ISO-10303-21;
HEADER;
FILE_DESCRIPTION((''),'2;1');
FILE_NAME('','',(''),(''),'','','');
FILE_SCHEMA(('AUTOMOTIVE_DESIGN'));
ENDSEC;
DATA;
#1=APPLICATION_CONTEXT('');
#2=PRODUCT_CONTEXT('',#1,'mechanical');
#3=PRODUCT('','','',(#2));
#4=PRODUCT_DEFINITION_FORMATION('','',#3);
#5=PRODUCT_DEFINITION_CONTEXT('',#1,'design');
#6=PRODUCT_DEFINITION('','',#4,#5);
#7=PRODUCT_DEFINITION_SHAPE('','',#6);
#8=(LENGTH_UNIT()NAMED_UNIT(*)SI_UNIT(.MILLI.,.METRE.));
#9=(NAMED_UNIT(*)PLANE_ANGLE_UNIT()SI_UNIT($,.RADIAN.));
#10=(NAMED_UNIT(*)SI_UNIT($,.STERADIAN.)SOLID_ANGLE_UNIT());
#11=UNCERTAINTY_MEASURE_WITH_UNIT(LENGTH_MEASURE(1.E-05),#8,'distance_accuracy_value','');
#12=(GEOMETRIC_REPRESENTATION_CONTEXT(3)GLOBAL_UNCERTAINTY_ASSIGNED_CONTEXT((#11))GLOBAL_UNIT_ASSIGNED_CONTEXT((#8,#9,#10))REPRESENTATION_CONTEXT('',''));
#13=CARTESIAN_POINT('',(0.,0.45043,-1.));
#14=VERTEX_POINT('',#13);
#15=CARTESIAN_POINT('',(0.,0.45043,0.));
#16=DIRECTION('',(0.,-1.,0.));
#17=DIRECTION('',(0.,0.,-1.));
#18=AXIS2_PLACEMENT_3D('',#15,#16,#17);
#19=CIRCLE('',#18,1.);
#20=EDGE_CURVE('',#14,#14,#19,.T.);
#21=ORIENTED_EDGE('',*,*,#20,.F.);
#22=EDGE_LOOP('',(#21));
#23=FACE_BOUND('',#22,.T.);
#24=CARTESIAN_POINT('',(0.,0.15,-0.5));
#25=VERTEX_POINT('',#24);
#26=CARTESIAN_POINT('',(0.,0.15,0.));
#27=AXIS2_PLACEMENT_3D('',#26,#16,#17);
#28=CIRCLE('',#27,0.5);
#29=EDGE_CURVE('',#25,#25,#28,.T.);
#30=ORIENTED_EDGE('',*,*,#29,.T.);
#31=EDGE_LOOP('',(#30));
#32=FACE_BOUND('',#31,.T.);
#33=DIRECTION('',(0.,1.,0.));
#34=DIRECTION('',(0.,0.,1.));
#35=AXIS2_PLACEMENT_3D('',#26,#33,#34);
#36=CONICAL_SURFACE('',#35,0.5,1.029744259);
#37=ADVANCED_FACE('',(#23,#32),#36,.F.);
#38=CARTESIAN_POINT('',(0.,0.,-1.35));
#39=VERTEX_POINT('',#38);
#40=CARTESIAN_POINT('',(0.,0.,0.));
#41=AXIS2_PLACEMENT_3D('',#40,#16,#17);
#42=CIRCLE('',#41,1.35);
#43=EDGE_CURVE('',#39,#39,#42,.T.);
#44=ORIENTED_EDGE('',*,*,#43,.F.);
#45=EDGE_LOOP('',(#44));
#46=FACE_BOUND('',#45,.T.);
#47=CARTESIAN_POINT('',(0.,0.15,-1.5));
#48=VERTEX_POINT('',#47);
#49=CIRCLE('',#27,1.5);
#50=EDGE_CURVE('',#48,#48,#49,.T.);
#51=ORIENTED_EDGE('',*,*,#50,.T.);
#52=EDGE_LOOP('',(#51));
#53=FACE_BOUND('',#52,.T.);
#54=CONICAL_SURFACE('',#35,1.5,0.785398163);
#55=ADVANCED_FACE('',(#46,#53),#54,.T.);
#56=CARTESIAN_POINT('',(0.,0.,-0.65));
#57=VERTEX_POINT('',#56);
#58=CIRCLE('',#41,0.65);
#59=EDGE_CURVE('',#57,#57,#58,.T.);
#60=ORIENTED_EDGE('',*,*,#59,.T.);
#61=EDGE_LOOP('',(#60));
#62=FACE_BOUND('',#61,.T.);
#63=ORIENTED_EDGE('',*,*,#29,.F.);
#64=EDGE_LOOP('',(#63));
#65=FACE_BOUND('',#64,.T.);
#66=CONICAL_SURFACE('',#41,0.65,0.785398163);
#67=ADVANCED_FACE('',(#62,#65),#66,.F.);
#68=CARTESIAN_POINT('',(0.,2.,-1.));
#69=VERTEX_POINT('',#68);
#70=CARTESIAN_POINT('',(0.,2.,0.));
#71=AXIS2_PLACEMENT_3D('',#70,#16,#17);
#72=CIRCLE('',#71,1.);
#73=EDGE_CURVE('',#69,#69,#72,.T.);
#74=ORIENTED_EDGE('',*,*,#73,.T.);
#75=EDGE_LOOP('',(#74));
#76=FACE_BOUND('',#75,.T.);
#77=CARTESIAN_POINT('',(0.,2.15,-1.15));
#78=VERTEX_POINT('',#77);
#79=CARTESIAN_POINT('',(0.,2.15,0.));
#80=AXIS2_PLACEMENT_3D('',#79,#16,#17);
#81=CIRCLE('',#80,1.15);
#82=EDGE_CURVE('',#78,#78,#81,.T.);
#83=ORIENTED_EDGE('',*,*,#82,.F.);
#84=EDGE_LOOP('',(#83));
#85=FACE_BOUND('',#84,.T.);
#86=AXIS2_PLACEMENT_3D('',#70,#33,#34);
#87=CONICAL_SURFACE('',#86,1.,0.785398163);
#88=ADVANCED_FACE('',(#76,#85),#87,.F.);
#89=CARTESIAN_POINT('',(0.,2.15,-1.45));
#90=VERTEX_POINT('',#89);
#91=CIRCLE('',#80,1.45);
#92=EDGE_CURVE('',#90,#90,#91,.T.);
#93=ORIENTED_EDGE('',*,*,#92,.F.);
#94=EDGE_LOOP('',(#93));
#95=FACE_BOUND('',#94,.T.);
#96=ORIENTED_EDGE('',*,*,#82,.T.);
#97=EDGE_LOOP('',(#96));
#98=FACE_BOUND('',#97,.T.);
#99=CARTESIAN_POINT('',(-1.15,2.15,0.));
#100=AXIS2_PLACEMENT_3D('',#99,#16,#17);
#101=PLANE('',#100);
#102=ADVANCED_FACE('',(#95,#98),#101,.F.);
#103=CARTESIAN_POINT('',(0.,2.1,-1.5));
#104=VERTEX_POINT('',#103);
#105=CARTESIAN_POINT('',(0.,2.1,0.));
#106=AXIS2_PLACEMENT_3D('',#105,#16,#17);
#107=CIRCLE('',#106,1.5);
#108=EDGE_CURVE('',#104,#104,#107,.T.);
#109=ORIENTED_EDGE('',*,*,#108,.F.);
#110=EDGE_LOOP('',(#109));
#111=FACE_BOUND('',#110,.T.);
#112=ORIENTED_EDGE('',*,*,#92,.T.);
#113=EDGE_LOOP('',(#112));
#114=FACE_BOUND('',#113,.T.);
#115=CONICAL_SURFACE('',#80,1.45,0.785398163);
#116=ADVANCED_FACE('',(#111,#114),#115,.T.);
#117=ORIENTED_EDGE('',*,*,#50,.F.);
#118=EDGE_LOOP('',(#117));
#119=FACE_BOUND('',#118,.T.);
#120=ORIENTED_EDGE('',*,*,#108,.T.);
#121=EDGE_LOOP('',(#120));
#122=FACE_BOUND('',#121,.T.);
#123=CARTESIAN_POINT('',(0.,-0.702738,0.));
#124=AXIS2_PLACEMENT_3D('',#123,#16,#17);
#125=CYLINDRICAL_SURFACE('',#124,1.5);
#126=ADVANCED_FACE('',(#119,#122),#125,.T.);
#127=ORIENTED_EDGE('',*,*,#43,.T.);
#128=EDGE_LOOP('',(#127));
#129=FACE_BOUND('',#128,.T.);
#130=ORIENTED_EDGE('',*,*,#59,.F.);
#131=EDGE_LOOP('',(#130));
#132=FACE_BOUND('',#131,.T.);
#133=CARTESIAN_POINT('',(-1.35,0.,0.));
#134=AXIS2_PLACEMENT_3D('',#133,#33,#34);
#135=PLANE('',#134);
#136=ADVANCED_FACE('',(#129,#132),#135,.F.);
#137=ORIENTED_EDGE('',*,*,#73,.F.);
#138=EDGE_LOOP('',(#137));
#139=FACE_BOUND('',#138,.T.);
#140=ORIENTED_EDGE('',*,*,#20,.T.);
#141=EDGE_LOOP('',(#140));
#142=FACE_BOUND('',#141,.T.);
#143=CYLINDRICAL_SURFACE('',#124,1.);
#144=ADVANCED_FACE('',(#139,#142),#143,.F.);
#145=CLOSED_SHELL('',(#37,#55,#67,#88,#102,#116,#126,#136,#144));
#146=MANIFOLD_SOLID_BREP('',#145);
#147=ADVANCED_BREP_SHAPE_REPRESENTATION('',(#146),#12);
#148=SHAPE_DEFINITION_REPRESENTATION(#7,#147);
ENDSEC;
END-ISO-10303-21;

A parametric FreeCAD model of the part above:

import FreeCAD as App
import Part
import Sketcher
from FreeCAD import Vector
Q = App.Units.Quantity

doc = App.newDocument("Part")
body = doc.addObject("PartDesign::Body", "Body")

# Sketch on XY plane
sketch1 = body.newObject("Sketcher::SketchObject", "Sketch")
sketch1.AttachmentSupport = (doc.getObject("XY_Plane"), [""])
sketch1.MapMode = "FlatFace"
sketch1.addGeometry([
    Part.LineSegment(Vector(-1.35, 0, 0), Vector(-0.65, 0, 0)),  # 0
    Part.LineSegment(Vector(-0.65, 0, 0), Vector(-0.5, 0.15, 0)),  # 1
    Part.LineSegment(Vector(-0.5, 0.15, 0), Vector(-1, 0.45, 0)),  # 2
    Part.LineSegment(Vector(-1, 0.45, 0), Vector(-1, 2, 0)),  # 3
    Part.LineSegment(Vector(-1, 2, 0), Vector(-1.15, 2.15, 0)),  # 4
    Part.LineSegment(Vector(-1.15, 2.15, 0), Vector(-1.45, 2.15, 0)),  # 5
    Part.LineSegment(Vector(-1.45, 2.15, 0), Vector(-1.5, 2.1, 0)),  # 6
    Part.LineSegment(Vector(-1.5, 2.1, 0), Vector(-1.5, 0.15, 0)),  # 7
    Part.LineSegment(Vector(-1.5, 0.15, 0), Vector(-1.35, 0, 0)),  # 8
], False)
sketch1.addConstraint([
    Sketcher.Constraint("Coincident", 0, 2, 1, 1),
    Sketcher.Constraint("Coincident", 1, 2, 2, 1),
    Sketcher.Constraint("Coincident", 2, 2, 3, 1),
    Sketcher.Constraint("Coincident", 3, 2, 4, 1),
    Sketcher.Constraint("Coincident", 4, 2, 5, 1),
    Sketcher.Constraint("Coincident", 5, 2, 6, 1),
    Sketcher.Constraint("Coincident", 6, 2, 7, 1),
    Sketcher.Constraint("Coincident", 7, 2, 8, 1),
    Sketcher.Constraint("Coincident", 8, 2, 0, 1),
    Sketcher.Constraint("Horizontal", 0),
    Sketcher.Constraint("Vertical", 3),
    Sketcher.Constraint("Horizontal", 5),
    Sketcher.Constraint("Vertical", 7),
    Sketcher.Constraint("PointOnObject", 0, 2, -1),
    Sketcher.Constraint("Perpendicular", 1, 4),
    Sketcher.Constraint("Perpendicular", 4, 6),
    Sketcher.Constraint("Perpendicular", 6, 8),
    Sketcher.Constraint("Horizontal", 1, 2, 7, 2),
    Sketcher.Constraint("Equal", 1, 4),
    Sketcher.Constraint("Equal", 4, 8),
    Sketcher.Constraint("Angle", 2, Q("149 deg")),
    Sketcher.Constraint("DistanceX", 0, 1, 0, 2, 0.7),
    Sketcher.Constraint("DistanceX", 5, 2, 5, 1, 0.3),
    Sketcher.Constraint("DistanceX", 2, 2, -1, 1, 1.0),
    Sketcher.Constraint("DistanceY", -1, 1, 3, 2, 2.0),
    Sketcher.Constraint("DistanceX", 6, 2, 1, 2, 1.0),
    Sketcher.Constraint("DistanceY", 7, 2, 7, 1, 1.95),
])
revolution = body.newObject("PartDesign::Revolution", "Revolution")
revolution.Profile = sketch1
revolution.ReferenceAxis = (sketch1, ["V_Axis"])
revolution.Angle = 360

doc.recompute()
